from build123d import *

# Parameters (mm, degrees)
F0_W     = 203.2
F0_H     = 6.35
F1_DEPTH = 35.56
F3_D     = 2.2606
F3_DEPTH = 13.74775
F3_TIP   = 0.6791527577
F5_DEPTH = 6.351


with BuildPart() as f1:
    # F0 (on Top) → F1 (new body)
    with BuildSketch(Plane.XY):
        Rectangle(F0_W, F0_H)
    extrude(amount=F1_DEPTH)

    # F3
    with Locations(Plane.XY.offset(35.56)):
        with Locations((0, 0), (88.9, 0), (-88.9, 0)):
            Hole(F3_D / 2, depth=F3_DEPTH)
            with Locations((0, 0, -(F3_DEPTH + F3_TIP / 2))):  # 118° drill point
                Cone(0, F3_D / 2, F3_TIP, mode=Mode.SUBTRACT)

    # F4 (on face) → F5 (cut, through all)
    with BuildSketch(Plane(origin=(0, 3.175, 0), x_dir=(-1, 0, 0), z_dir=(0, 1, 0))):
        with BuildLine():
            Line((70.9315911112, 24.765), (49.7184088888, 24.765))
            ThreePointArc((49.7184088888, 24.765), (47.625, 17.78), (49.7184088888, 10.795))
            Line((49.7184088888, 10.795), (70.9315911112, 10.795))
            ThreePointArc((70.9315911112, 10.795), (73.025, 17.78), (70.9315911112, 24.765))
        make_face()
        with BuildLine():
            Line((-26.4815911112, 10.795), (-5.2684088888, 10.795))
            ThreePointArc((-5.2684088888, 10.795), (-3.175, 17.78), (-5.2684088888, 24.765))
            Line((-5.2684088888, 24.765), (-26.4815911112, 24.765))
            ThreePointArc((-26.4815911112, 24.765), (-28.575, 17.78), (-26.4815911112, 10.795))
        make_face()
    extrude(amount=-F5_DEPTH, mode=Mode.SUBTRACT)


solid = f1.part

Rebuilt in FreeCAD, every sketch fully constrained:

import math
import FreeCAD as App
import Part
import Sketcher
Q = App.Units.Quantity


def add_polygon(sketch, points):
    """Adds a closed chain of lines whose ends are joined by coincident constraints."""
    first, n = sketch.GeometryCount, len(points)
    for a, b in zip(points, points[1:] + points[:1]):
        sketch.addGeometry(Part.LineSegment(App.Vector(*a, 0), App.Vector(*b, 0)), False)
    for i in range(n):
        sketch.addConstraint(Sketcher.Constraint("Coincident", first + i, 2, first + (i + 1) % n, 1))

doc = App.newDocument("Part")
body = doc.addObject("PartDesign::Body", "Body")

# Sketch on XY plane
sketch1 = body.newObject("Sketcher::SketchObject", "Sketch")
sketch1.AttachmentSupport = (doc.getObject("XY_Plane"), [""])
sketch1.MapMode = "FlatFace"
add_polygon(sketch1, [(-101.6, 3.175), (-101.6, -3.175), (101.6, -3.175), (101.6, 3.175)])  # lines 0-3
sketch1.addConstraint([
    Sketcher.Constraint("Vertical", 0),
    Sketcher.Constraint("Horizontal", 1),
    Sketcher.Constraint("Vertical", 2),
    Sketcher.Constraint("Horizontal", 3),
    Sketcher.Constraint("Symmetric", 0, 2, 2, 2, -1, 1),
    Sketcher.Constraint("DistanceX", 1, 1, 1, 2, Q("8 in")),
    Sketcher.Constraint("DistanceY", 0, 2, 0, 1, Q("0.25 in")),
])
pad1 = body.newObject("PartDesign::Pad", "Pad")
pad1.Profile = sketch1
pad1.Length = Q("1.4 in")

# Sketch on XY plane
sketch2 = body.newObject("Sketcher::SketchObject", "Sketch001")
sketch2.AttachmentSupport = (doc.getObject("XY_Plane"), [""])
sketch2.MapMode = "FlatFace"
sketch2.AttachmentOffset = App.Placement(App.Vector(0, 0, 1.4 * 25.4), App.Rotation())
sketch2.addGeometry([
    Part.Circle(App.Vector(0, 0, 0), App.Vector(0, 0, 1), 1.1303),
    Part.Circle(App.Vector(88.9, 0, 0), App.Vector(0, 0, 1), 1.1303),
    Part.Circle(App.Vector(-88.9, 0, 0), App.Vector(0, 0, 1), 1.1303),
], False)
sketch2.addConstraint([
    Sketcher.Constraint("Coincident", 0, 3, -1, 1),
    Sketcher.Constraint("Equal", 0, 1),
    Sketcher.Constraint("Equal", 1, 2),
    Sketcher.Constraint("Symmetric", 1, 3, 2, 3, -1, 1),
    Sketcher.Constraint("PointOnObject", 1, 3, -1),
    Sketcher.Constraint("Diameter", 0, Q("0.089 in")),
    Sketcher.Constraint("DistanceX", 2, 3, 1, 3, Q("7 in")),
])
doc.recompute()
hole = body.newObject("PartDesign::Hole", "Hole")
hole.Profile = sketch2
hole.ThreadType = "None"
hole.Diameter = Q("0.089 in")
hole.DepthType = "Dimension"
hole.Depth = 13.74775
hole.DrillPoint = "Angled"
hole.DrillPointAngle = 118

# Sketch on XZ plane
sketch3 = body.newObject("Sketcher::SketchObject", "Sketch002")
sketch3.AttachmentSupport = (doc.getObject("XZ_Plane"), [""])
sketch3.MapMode = "FlatFace"
sketch3.AttachmentOffset = App.Placement(App.Vector(0, 0, -0.125 * 25.4), App.Rotation())
sketch3.addGeometry([
    Part.LineSegment(App.Vector(-70.931591, 24.765, 0), App.Vector(-49.718409, 24.765, 0)),  # 0
    Part.ArcOfCircle(Part.Circle(App.Vector(-60.325, 17.78, 0), App.Vector(0, 0, 1), 12.7), math.radians(-33.367013), math.radians(33.367013)),  # 1
    Part.LineSegment(App.Vector(-49.718409, 10.795, 0), App.Vector(-70.931591, 10.795, 0)),  # 2
    Part.ArcOfCircle(Part.Circle(App.Vector(-60.325, 17.78, 0), App.Vector(0, 0, 1), 12.7), math.radians(146.632987), math.radians(213.367013)),  # 3
    Part.LineSegment(App.Vector(26.481591, 10.795, 0), App.Vector(5.268409, 10.795, 0)),  # 4
    Part.ArcOfCircle(Part.Circle(App.Vector(15.875, 17.78, 0), App.Vector(0, 0, 1), 12.7), math.radians(146.632987), math.radians(213.367013)),  # 5
    Part.LineSegment(App.Vector(5.268409, 24.765, 0), App.Vector(26.481591, 24.765, 0)),  # 6
    Part.ArcOfCircle(Part.Circle(App.Vector(15.875, 17.78, 0), App.Vector(0, 0, 1), 12.7), math.radians(-33.367013), math.radians(33.367013)),  # 7
], False)
sketch3.addConstraint([
    Sketcher.Constraint("Coincident", 0, 2, 1, 2),
    Sketcher.Constraint("Coincident", 1, 1, 2, 1),
    Sketcher.Constraint("Coincident", 2, 2, 3, 2),
    Sketcher.Constraint("Coincident", 3, 1, 0, 1),
    Sketcher.Constraint("Coincident", 4, 2, 5, 2),
    Sketcher.Constraint("Coincident", 5, 1, 6, 1),
    Sketcher.Constraint("Coincident", 6, 2, 7, 2),
    Sketcher.Constraint("Coincident", 7, 1, 4, 1),
    Sketcher.Constraint("Horizontal", 0),
    Sketcher.Constraint("Horizontal", 2),
    Sketcher.Constraint("Horizontal", 4),
    Sketcher.Constraint("Horizontal", 6),
    Sketcher.Constraint("Coincident", 3, 3, 1, 3),
    Sketcher.Constraint("Coincident", 7, 3, 5, 3),
    Sketcher.Constraint("Equal", 1, 3),
    Sketcher.Constraint("Equal", 3, 5),
    Sketcher.Constraint("Equal", 5, 7),
    Sketcher.Constraint("Horizontal", 3, 3, 5, 3),
    Sketcher.Constraint("Horizontal", 2, 2, 4, 2),
    Sketcher.Constraint("Horizontal", 3, 1, 5, 1),
    Sketcher.Constraint("Vertical", 0, 2, 1, 1),
    Sketcher.Constraint("Radius", 1, Q("0.5 in")),
    Sketcher.Constraint("DistanceX", 1, 3, 5, 3, Q("3 in")),
    Sketcher.Constraint("DistanceY", -1, 1, 1, 3, Q("0.7 in")),
    Sketcher.Constraint("DistanceY", 1, 1, 0, 2, Q("0.55 in")),
    Sketcher.Constraint("DistanceX", 1, 3, -1, 1, Q("2.375 in")),
])
pocket1 = body.newObject("PartDesign::Pocket", "Pocket")
pocket1.Profile = sketch3
pocket1.Type = "ThroughAll"
pocket1.Reversed = True

doc.recompute()
